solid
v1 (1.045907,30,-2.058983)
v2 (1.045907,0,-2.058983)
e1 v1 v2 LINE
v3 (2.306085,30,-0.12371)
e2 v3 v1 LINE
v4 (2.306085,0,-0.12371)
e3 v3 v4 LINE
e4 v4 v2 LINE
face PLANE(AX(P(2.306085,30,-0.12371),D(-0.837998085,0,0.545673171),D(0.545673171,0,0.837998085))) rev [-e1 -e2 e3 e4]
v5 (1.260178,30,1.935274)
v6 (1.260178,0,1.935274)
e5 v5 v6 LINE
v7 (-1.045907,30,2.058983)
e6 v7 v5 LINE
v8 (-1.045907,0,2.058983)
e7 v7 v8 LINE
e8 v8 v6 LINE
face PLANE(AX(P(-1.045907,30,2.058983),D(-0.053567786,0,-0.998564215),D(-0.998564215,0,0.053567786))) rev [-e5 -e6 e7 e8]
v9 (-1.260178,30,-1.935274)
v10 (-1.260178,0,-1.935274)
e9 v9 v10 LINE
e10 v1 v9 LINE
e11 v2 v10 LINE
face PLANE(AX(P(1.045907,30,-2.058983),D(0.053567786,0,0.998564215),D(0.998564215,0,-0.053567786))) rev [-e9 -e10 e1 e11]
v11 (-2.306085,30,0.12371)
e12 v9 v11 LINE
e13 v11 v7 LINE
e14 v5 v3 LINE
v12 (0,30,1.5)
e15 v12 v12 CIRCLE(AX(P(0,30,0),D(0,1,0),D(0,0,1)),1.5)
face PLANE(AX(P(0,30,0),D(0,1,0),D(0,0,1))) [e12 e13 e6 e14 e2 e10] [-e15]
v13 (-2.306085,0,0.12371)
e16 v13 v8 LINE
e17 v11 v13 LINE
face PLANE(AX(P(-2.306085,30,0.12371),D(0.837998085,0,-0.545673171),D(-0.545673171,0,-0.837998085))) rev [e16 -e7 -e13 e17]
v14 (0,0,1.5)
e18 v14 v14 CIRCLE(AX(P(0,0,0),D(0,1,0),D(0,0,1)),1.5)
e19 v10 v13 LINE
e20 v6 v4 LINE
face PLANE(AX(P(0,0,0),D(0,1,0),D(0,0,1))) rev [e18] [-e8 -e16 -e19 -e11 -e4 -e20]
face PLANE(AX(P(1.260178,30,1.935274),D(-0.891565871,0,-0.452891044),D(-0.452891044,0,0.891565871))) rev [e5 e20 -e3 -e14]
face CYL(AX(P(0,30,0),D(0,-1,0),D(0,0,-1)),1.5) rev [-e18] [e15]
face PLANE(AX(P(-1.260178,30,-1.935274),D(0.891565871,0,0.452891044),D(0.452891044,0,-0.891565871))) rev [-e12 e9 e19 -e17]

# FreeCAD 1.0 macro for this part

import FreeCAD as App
import Part
import Sketcher
Q = App.Units.Quantity

doc = App.newDocument("Part")
body = doc.addObject("PartDesign::Body", "Body")

sketch1 = body.newObject("Sketcher::SketchObject", "Sketch")
sketch1.AttachmentSupport = (doc.getObject("XZ_Plane"), [""])
sketch1.MapMode = "FlatFace"
sketch1.addGeometry([
    Part.LineSegment(App.Vector(-1.3, -1.9, 0), App.Vector(-2.3, 0.1, 0)),
    Part.LineSegment(App.Vector(-2.3, 0.1, 0), App.Vector(-1, 2.1, 0)),
    Part.LineSegment(App.Vector(-1, 2.1, 0), App.Vector(1.3, 1.9, 0)),
    Part.LineSegment(App.Vector(1.3, 1.9, 0), App.Vector(2.3, -0.1, 0)),
    Part.LineSegment(App.Vector(2.3, -0.1, 0), App.Vector(1, -2.1, 0)),
    Part.LineSegment(App.Vector(1, -2.1, 0), App.Vector(-1.3, -1.9, 0)),
    Part.Circle(App.Vector(0, 0, 0), App.Vector(0, 0, 1), 1.5),
], False)
sketch1.addConstraint([
    Sketcher.Constraint("Coincident", 0, 2, 1, 1),
    Sketcher.Constraint("Coincident", 1, 2, 2, 1),
    Sketcher.Constraint("Coincident", 2, 2, 3, 1),
    Sketcher.Constraint("Coincident", 3, 2, 4, 1),
    Sketcher.Constraint("Coincident", 4, 2, 5, 1),
    Sketcher.Constraint("Coincident", 5, 2, 0, 1),
    Sketcher.Constraint("Coincident", 6, 3, -1, 1),
    Sketcher.Constraint("Symmetric", 0, 2, 3, 2, -1, 1),
    Sketcher.Constraint("Symmetric", 1, 2, 4, 2, -1, 1),
    Sketcher.Constraint("Symmetric", 2, 2, 5, 2, -1, 1),
    Sketcher.Constraint("Equal", 0, 1),
    Sketcher.Constraint("Equal", 1, 2),
    Sketcher.Constraint("Diameter", 6, Q("3 mm")),
    Sketcher.Constraint("Distance", 0, Q("2.309401 mm")),
    Sketcher.Constraint("DistanceY", -1, 1, 0, 2, Q("0.12371 mm")),
    Sketcher.Constraint("DistanceX", -1, 1, 2, 2, Q("1.260178 mm")),
    Sketcher.Constraint("DistanceX", 0, 2, 1, 2, Q("1.260178 mm")),
])
pad1 = body.newObject("PartDesign::Pad", "Pad")
pad1.Profile = sketch1
pad1.Length = 30
pad1.Reversed = True

doc.recompute()
